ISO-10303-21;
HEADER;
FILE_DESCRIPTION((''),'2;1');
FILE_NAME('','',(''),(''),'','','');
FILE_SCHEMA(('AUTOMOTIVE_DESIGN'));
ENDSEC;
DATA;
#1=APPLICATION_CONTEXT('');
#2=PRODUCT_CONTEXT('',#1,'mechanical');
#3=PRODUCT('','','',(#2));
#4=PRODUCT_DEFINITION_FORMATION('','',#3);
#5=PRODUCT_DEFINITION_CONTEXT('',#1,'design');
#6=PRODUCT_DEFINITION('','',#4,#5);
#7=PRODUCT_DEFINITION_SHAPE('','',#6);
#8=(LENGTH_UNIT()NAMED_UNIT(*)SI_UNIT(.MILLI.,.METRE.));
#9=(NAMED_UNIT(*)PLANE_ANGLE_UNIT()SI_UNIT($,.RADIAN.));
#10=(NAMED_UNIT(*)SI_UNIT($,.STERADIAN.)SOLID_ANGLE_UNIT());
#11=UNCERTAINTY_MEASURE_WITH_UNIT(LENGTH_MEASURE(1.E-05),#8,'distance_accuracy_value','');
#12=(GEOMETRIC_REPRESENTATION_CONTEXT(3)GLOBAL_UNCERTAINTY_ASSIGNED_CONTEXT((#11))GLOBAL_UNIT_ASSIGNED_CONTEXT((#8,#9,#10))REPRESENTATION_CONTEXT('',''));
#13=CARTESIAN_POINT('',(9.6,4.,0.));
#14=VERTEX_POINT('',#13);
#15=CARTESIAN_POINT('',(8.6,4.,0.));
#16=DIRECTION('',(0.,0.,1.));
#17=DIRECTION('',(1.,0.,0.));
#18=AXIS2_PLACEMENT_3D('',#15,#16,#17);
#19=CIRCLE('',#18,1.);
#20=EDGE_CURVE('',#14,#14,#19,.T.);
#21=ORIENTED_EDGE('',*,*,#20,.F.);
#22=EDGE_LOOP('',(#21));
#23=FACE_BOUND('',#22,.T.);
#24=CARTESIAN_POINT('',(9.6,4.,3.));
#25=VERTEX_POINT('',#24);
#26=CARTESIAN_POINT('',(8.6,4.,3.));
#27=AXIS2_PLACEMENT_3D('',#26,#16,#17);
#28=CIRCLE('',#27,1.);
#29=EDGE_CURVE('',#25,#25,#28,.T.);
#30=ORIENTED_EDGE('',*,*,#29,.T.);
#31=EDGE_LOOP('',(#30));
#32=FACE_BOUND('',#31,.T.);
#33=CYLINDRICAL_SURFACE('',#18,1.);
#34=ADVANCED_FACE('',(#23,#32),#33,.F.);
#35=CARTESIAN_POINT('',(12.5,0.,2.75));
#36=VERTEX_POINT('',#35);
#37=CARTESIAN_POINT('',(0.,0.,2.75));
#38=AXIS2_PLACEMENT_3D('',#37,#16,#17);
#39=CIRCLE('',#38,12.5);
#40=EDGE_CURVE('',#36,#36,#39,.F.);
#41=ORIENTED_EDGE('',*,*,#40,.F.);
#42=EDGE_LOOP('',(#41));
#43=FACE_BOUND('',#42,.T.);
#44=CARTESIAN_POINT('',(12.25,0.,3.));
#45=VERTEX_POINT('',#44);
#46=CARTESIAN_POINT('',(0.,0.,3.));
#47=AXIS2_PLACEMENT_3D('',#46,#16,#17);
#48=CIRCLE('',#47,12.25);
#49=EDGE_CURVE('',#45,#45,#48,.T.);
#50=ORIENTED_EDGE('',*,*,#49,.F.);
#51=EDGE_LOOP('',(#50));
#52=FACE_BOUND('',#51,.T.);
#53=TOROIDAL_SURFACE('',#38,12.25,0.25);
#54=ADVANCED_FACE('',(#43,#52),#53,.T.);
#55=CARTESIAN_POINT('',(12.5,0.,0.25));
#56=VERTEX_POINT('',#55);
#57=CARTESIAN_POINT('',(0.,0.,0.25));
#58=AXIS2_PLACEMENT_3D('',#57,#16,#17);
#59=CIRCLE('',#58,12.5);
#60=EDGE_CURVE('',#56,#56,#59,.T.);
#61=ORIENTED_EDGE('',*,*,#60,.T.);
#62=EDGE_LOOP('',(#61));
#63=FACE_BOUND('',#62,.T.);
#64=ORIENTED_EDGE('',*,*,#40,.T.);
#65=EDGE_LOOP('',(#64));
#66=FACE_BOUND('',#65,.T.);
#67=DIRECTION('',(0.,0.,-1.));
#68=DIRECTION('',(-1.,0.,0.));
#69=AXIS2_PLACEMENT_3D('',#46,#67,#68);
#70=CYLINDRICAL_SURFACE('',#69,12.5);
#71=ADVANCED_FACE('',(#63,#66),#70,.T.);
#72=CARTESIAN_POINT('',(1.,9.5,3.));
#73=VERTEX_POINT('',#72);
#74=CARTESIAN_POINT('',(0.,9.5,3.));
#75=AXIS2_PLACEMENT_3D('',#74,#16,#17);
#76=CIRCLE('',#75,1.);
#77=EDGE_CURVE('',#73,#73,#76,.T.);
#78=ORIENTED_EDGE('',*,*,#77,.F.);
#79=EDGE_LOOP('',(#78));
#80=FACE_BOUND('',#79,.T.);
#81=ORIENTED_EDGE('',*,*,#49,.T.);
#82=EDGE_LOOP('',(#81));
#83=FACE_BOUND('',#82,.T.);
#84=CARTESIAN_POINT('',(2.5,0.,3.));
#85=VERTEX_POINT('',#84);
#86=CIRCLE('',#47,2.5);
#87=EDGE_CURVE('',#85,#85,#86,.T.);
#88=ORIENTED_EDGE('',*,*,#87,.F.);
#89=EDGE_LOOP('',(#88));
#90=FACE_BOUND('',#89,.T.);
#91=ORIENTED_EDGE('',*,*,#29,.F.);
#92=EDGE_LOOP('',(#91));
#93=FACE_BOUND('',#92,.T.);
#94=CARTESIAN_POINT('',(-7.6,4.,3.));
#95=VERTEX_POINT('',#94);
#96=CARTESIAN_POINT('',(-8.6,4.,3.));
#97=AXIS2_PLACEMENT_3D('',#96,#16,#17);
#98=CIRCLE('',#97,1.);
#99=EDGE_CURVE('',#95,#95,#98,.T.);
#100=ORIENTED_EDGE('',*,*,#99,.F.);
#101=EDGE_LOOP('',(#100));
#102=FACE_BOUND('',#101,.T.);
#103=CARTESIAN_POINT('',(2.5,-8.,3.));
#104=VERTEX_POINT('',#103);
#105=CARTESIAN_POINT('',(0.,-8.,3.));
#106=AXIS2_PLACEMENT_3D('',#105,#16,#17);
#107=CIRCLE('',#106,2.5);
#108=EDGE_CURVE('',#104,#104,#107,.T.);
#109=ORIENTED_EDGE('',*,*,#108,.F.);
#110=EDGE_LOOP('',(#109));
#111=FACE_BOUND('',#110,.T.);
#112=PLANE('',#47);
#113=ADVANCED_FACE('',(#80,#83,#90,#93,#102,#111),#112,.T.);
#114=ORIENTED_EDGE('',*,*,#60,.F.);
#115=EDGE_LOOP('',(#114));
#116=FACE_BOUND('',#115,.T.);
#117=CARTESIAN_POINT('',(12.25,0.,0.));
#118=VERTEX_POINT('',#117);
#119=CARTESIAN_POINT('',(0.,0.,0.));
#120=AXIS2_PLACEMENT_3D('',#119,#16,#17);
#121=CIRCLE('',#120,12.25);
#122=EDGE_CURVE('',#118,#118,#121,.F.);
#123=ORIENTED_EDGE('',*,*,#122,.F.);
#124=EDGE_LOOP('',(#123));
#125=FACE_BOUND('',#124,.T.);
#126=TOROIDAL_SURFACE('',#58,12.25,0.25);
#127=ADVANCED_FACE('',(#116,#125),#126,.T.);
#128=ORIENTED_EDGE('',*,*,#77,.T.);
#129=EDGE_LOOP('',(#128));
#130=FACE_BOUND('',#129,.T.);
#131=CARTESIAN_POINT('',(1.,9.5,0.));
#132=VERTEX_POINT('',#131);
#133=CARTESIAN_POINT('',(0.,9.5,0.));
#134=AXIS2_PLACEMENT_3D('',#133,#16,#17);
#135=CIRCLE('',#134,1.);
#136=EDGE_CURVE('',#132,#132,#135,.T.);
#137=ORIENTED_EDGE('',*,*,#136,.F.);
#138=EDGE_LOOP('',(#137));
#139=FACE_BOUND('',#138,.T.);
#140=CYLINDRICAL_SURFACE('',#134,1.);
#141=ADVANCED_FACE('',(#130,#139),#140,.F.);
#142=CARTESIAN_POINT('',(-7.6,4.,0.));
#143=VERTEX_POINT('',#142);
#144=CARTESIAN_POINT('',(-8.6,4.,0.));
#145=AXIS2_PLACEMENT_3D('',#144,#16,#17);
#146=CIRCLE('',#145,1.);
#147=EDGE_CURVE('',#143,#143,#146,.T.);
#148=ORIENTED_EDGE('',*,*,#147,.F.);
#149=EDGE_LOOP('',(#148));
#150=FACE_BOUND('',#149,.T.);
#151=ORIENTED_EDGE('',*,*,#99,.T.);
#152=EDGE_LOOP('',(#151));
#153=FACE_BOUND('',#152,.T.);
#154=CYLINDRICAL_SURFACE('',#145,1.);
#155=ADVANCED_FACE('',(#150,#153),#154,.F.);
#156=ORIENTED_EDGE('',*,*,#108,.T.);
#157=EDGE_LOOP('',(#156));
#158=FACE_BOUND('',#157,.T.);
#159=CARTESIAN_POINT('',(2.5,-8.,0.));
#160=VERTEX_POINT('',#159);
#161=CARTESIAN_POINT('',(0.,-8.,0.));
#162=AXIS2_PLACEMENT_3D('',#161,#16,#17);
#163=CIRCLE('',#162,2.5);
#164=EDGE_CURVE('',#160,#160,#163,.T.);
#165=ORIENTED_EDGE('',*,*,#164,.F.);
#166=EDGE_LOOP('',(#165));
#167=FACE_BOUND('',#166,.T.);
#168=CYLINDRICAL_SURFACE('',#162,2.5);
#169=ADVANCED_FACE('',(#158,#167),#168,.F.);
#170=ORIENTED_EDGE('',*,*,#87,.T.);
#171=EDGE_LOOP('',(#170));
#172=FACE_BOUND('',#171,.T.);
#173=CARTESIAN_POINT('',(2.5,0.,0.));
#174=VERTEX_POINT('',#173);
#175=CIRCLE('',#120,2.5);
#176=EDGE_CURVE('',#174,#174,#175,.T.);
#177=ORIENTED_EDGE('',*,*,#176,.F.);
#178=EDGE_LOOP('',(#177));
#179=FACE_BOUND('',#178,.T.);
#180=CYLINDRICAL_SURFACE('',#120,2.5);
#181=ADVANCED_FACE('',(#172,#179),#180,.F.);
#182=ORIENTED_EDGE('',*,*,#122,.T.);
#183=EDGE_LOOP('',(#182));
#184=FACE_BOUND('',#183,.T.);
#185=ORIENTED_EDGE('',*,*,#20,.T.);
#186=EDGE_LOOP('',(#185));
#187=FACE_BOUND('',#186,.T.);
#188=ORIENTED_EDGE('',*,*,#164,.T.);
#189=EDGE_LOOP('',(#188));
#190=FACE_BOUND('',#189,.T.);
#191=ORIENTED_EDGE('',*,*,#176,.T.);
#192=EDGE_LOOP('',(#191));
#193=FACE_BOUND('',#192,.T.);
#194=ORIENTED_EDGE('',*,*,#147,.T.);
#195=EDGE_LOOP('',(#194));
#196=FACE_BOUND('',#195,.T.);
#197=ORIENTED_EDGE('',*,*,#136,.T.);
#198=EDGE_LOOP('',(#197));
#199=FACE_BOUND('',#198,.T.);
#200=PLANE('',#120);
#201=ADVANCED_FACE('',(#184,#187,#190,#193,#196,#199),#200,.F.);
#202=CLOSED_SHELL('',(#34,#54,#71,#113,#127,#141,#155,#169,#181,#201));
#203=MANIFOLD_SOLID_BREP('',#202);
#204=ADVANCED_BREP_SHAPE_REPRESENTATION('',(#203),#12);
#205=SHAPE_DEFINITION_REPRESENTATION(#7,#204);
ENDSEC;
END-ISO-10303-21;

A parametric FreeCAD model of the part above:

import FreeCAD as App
import Part
import Sketcher
from FreeCAD import Vector


def edges_at(feature, points):
    """Names of the edges that pass closest to the given points."""
    edges = feature.Shape.Edges
    near = lambda p: min(range(len(edges)), key=lambda i: edges[i].distToShape(Part.Vertex(*p))[0])
    return sorted({f"Edge{near(p) + 1}" for p in points})

doc = App.newDocument("Part")
params = doc.addObject("Spreadsheet::Sheet", "Params")
for row, (alias, value) in enumerate([
    ("sketch1_diameter", "25 mm"),
    ("pad1_length", "3 mm"),
    ("sketch2_diameter", "5 mm"),
    ("sketch2_diameter2", "2 mm"),
    ("pocket1_length", "3 mm"),
    ("fillet_radius", "0.25 mm"),
], start=1):
    params.set(f"A{row}", alias)
    params.set(f"B{row}", "=" + value)
    params.setAlias(f"B{row}", alias)

body = doc.addObject("PartDesign::Body", "Body")

# Sketch on XY plane
sketch1 = body.newObject("Sketcher::SketchObject", "Sketch")
sketch1.AttachmentSupport = (doc.getObject("XY_Plane"), [""])
sketch1.MapMode = "FlatFace"
sketch1.addGeometry(Part.Circle(Vector(0, 0, 0), Vector(0, 0, 1), 12), False)
sketch1.addConstraint(Sketcher.Constraint("Coincident", 0, 3, -1, 1))
sketch1.addConstraint(Sketcher.Constraint("Diameter", 0, 25.0))
sketch1.setExpression("Constraints[1]", "Params.sketch1_diameter")
pad1 = body.newObject("PartDesign::Pad", "Pad")
pad1.Profile = sketch1
pad1.setExpression("Length", "Params.pad1_length")

# Sketch on XY plane
sketch2 = body.newObject("Sketcher::SketchObject", "Sketch001")
sketch2.AttachmentSupport = (doc.getObject("XY_Plane"), [""])
sketch2.MapMode = "FlatFace"
sketch2.AttachmentOffset = App.Placement(Vector(0, 0, 3), App.Rotation())
sketch2.addGeometry(Part.Circle(Vector(0, 0, 0), Vector(0, 0, 1), 2.5), False)
sketch2.addGeometry(Part.Circle(Vector(0, -8, 0), Vector(0, 0, 1), 2.5), False)
sketch2.addGeometry(Part.Circle(Vector(0, 9.5, 0), Vector(0, 0, 1), 1), False)
sketch2.addGeometry(Part.Circle(Vector(8.6, 4, 0), Vector(0, 0, 1), 1), False)
sketch2.addGeometry(Part.Circle(Vector(-8.6, 4, 0), Vector(0, 0, 1), 1), False)
sketch2.addConstraint(Sketcher.Constraint("Coincident", 0, 3, -1, 1))
sketch2.addConstraint(Sketcher.Constraint("Equal", 0, 1))
sketch2.addConstraint(Sketcher.Constraint("Equal", 2, 3))
sketch2.addConstraint(Sketcher.Constraint("Equal", 3, 4))
sketch2.addConstraint(Sketcher.Constraint("Symmetric", 3, 3, 4, 3, -2))
sketch2.addConstraint(Sketcher.Constraint("PointOnObject", 1, 3, -2))
sketch2.addConstraint(Sketcher.Constraint("PointOnObject", 2, 3, -2))
sketch2.addConstraint(Sketcher.Constraint("Diameter", 0, 5.0))
sketch2.addConstraint(Sketcher.Constraint("Diameter", 2, 2.0))
sketch2.addConstraint(Sketcher.Constraint("DistanceY", 1, 3, -1, 1, 8.0))
sketch2.addConstraint(Sketcher.Constraint("DistanceY", -1, 1, 3, 3, 4.0))
sketch2.addConstraint(Sketcher.Constraint("DistanceY", -1, 1, 2, 3, 9.5))
sketch2.addConstraint(Sketcher.Constraint("DistanceX", -1, 1, 3, 3, 8.6))
sketch2.setExpression("Constraints[7]", "Params.sketch2_diameter")
sketch2.setExpression("Constraints[8]", "Params.sketch2_diameter2")
pocket1 = body.newObject("PartDesign::Pocket", "Pocket")
pocket1.Profile = sketch2
pocket1.setExpression("Length", "Params.pocket1_length")
doc.recompute()

fillet = body.newObject("PartDesign::Fillet", "Fillet")
fillet.Base = (pocket1, edges_at(pocket1, [(-12.5, 0, 0), (-12.5, 0, 3)]))
fillet.setExpression("Radius", "Params.fillet_radius")

doc.recompute()
